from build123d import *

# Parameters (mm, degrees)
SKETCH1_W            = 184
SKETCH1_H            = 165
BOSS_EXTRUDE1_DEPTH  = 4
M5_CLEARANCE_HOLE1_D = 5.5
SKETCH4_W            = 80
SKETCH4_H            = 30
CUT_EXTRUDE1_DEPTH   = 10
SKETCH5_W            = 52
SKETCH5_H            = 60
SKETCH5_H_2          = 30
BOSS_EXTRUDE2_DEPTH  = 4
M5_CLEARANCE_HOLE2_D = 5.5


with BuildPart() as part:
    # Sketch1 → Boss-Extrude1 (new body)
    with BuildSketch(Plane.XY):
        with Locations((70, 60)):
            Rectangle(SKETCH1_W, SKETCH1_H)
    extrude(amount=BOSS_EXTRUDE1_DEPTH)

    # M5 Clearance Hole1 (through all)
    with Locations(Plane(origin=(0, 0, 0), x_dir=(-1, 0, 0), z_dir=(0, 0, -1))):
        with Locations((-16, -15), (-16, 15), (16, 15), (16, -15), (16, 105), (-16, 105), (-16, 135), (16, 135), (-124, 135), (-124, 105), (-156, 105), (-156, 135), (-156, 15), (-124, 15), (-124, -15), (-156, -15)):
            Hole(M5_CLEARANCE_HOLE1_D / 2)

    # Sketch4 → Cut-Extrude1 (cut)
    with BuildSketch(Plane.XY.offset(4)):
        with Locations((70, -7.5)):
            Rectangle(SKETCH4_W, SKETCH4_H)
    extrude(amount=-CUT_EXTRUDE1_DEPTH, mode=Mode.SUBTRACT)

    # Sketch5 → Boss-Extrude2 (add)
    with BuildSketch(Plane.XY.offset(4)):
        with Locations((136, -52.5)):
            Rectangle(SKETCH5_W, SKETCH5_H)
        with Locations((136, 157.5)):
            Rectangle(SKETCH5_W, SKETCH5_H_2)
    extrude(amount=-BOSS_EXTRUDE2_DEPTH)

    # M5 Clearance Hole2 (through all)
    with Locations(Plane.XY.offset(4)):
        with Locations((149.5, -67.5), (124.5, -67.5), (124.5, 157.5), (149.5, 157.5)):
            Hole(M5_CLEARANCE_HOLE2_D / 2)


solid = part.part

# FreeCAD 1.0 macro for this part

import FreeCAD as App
import Part
import Sketcher
from FreeCAD import Vector
Q = App.Units.Quantity


def add_polygon(sketch, points):
    """Adds a closed chain of lines whose ends are joined by coincident constraints."""
    first, n = sketch.GeometryCount, len(points)
    for a, b in zip(points, points[1:] + points[:1]):
        sketch.addGeometry(Part.LineSegment(App.Vector(*a, 0), App.Vector(*b, 0)), False)
    for i in range(n):
        sketch.addConstraint(Sketcher.Constraint("Coincident", first + i, 2, first + (i + 1) % n, 1))

doc = App.newDocument("Part")
params = doc.addObject("Spreadsheet::Sheet", "Params")
for row, (alias, value) in enumerate([
    ("sketch1_width", "184 mm"),
    ("sketch1_height", "165 mm"),
    ("pad1_length", "4 mm"),
    ("sketch2_diameter", "5.5 mm"),
    ("hole_diameter", "5.5 mm"),
    ("sketch3_width", "80 mm"),
    ("sketch3_height", "30 mm"),
    ("pocket1_length", "10 mm"),
    ("sketch4_width", "52 mm"),
    ("sketch4_height", "60 mm"),
    ("sketch4_height2", "30 mm"),
    ("pad2_length", "4 mm"),
    ("sketch5_diameter", "5.5 mm"),
    ("hole2_diameter", "5.5 mm"),
], start=1):
    params.set(f"A{row}", alias)
    params.set(f"B{row}", "=" + value)
    params.setAlias(f"B{row}", alias)

body = doc.addObject("PartDesign::Body", "Body")

# Sketch on XY plane
sketch1 = body.newObject("Sketcher::SketchObject", "Sketch")
sketch1.AttachmentSupport = (doc.getObject("XY_Plane"), [""])
sketch1.MapMode = "FlatFace"
add_polygon(sketch1, [(-22, 142), (-22, -22), (162, -22), (162, 142)])  # lines 0-3
sketch1.addConstraint(Sketcher.Constraint("Vertical", 0))
sketch1.addConstraint(Sketcher.Constraint("Horizontal", 1))
sketch1.addConstraint(Sketcher.Constraint("Vertical", 2))
sketch1.addConstraint(Sketcher.Constraint("Horizontal", 3))
sketch1.addConstraint(Sketcher.Constraint("DistanceX", 1, 1, 1, 2, Q("184 mm")))
sketch1.addConstraint(Sketcher.Constraint("DistanceY", 0, 2, 0, 1, Q("165 mm")))
sketch1.addConstraint(Sketcher.Constraint("DistanceX", 0, 2, -1, 1, Q("22 mm")))
sketch1.addConstraint(Sketcher.Constraint("DistanceY", 0, 2, -1, 1, Q("22.5 mm")))
sketch1.setExpression("Constraints[8]", "Params.sketch1_width")
sketch1.setExpression("Constraints[9]", "Params.sketch1_height")
pad1 = body.newObject("PartDesign::Pad", "Pad")
pad1.Profile = sketch1
pad1.setExpression("Length", "Params.pad1_length")

# Sketch on XY plane
sketch2 = body.newObject("Sketcher::SketchObject", "Sketch001")
sketch2.AttachmentSupport = (doc.getObject("XY_Plane"), [""])
sketch2.MapMode = "FlatFace"
sketch2.addGeometry(Part.Circle(Vector(16, -15, 0), Vector(0, 0, 1), 2.8), False)
sketch2.addGeometry(Part.Circle(Vector(16, 15, 0), Vector(0, 0, 1), 2.8), False)
sketch2.addGeometry(Part.Circle(Vector(-16, 15, 0), Vector(0, 0, 1), 2.8), False)
sketch2.addGeometry(Part.Circle(Vector(-16, -15, 0), Vector(0, 0, 1), 2.8), False)
sketch2.addGeometry(Part.Circle(Vector(-16, 105, 0), Vector(0, 0, 1), 2.8), False)
sketch2.addGeometry(Part.Circle(Vector(16, 105, 0), Vector(0, 0, 1), 2.8), False)
sketch2.addGeometry(Part.Circle(Vector(16, 135, 0), Vector(0, 0, 1), 2.8), False)
sketch2.addGeometry(Part.Circle(Vector(-16, 135, 0), Vector(0, 0, 1), 2.8), False)
sketch2.addGeometry(Part.Circle(Vector(124, 135, 0), Vector(0, 0, 1), 2.8), False)
sketch2.addGeometry(Part.Circle(Vector(124, 105, 0), Vector(0, 0, 1), 2.8), False)
sketch2.addGeometry(Part.Circle(Vector(156, 105, 0), Vector(0, 0, 1), 2.8), False)
sketch2.addGeometry(Part.Circle(Vector(156, 135, 0), Vector(0, 0, 1), 2.8), False)
sketch2.addGeometry(Part.Circle(Vector(156, 15, 0), Vector(0, 0, 1), 2.8), False)
sketch2.addGeometry(Part.Circle(Vector(124, 15, 0), Vector(0, 0, 1), 2.8), False)
sketch2.addGeometry(Part.Circle(Vector(124, -15, 0), Vector(0, 0, 1), 2.8), False)
sketch2.addGeometry(Part.Circle(Vector(156, -15, 0), Vector(0, 0, 1), 2.8), False)
sketch2.addConstraint(Sketcher.Constraint("Equal", 0, 1))
sketch2.addConstraint(Sketcher.Constraint("Equal", 1, 2))
sketch2.addConstraint(Sketcher.Constraint("Equal", 2, 3))
sketch2.addConstraint(Sketcher.Constraint("Equal", 3, 4))
sketch2.addConstraint(Sketcher.Constraint("Equal", 4, 5))
sketch2.addConstraint(Sketcher.Constraint("Equal", 5, 6))
sketch2.addConstraint(Sketcher.Constraint("Equal", 6, 7))
sketch2.addConstraint(Sketcher.Constraint("Equal", 7, 8))
sketch2.addConstraint(Sketcher.Constraint("Equal", 8, 9))
sketch2.addConstraint(Sketcher.Constraint("Equal", 9, 10))
sketch2.addConstraint(Sketcher.Constraint("Equal", 10, 11))
sketch2.addConstraint(Sketcher.Constraint("Equal", 11, 12))
sketch2.addConstraint(Sketcher.Constraint("Equal", 12, 13))
sketch2.addConstraint(Sketcher.Constraint("Equal", 13, 14))
sketch2.addConstraint(Sketcher.Constraint("Equal", 14, 15))
sketch2.addConstraint(Sketcher.Constraint("Symmetric", 0, 3, 2, 3, -1, 1))
sketch2.addConstraint(Sketcher.Constraint("Symmetric", 1, 3, 3, 3, -1, 1))
sketch2.addConstraint(Sketcher.Constraint("Symmetric", 1, 3, 2, 3, -2))
sketch2.addConstraint(Sketcher.Constraint("Symmetric", 4, 3, 5, 3, -2))
sketch2.addConstraint(Sketcher.Constraint("Symmetric", 6, 3, 7, 3, -2))
sketch2.addConstraint(Sketcher.Constraint("Symmetric", 13, 3, 14, 3, -1))
sketch2.addConstraint(Sketcher.Constraint("Symmetric", 12, 3, 15, 3, -1))
sketch2.addConstraint(Sketcher.Constraint("Horizontal", 7, 3, 8, 3))
sketch2.addConstraint(Sketcher.Constraint("Horizontal", 5, 3, 9, 3))
sketch2.addConstraint(Sketcher.Constraint("Horizontal", 9, 3, 10, 3))
sketch2.addConstraint(Sketcher.Constraint("Horizontal", 8, 3, 11, 3))
sketch2.addConstraint(Sketcher.Constraint("Horizontal", 2, 3, 12, 3))
sketch2.addConstraint(Sketcher.Constraint("Horizontal", 12, 3, 13, 3))
sketch2.addConstraint(Sketcher.Constraint("Vertical", 3, 3, 4, 3))
sketch2.addConstraint(Sketcher.Constraint("Vertical", 5, 3, 6, 3))
sketch2.addConstraint(Sketcher.Constraint("Vertical", 8, 3, 9, 3))
sketch2.addConstraint(Sketcher.Constraint("Vertical", 10, 3, 11, 3))
sketch2.addConstraint(Sketcher.Constraint("Vertical", 11, 3, 12, 3))
sketch2.addConstraint(Sketcher.Constraint("Vertical", 9, 3, 13, 3))
sketch2.addConstraint(Sketcher.Constraint("Diameter", 0, Q("5.5 mm")))
sketch2.addConstraint(Sketcher.Constraint("DistanceX", -1, 1, 0, 3, Q("16 mm")))
sketch2.addConstraint(Sketcher.Constraint("DistanceY", 0, 3, -1, 1, Q("15 mm")))
sketch2.addConstraint(Sketcher.Constraint("DistanceY", -1, 1, 4, 3, Q("105 mm")))
sketch2.addConstraint(Sketcher.Constraint("DistanceY", -1, 1, 6, 3, Q("135 mm")))
sketch2.addConstraint(Sketcher.Constraint("DistanceX", -1, 1, 8, 3, Q("124 mm")))
sketch2.addConstraint(Sketcher.Constraint("DistanceX", -1, 1, 10, 3, Q("156 mm")))
sketch2.setExpression("Constraints[34]", "Params.sketch2_diameter")
doc.recompute()
hole = body.newObject("PartDesign::Hole", "Hole")
hole.Profile = sketch2
hole.ThreadType = "None"
hole.setExpression("Diameter", "Params.hole_diameter")
hole.DepthType = "ThroughAll"
hole.Reversed = True

# Sketch on XY plane
sketch3 = body.newObject("Sketcher::SketchObject", "Sketch002")
sketch3.AttachmentSupport = (doc.getObject("XY_Plane"), [""])
sketch3.MapMode = "FlatFace"
sketch3.AttachmentOffset = App.Placement(Vector(0, 0, 4), App.Rotation())
add_polygon(sketch3, [(30, 8), (30, -22), (110, -22), (110, 8)])  # lines 0-3
sketch3.addConstraint(Sketcher.Constraint("Vertical", 0))
sketch3.addConstraint(Sketcher.Constraint("Horizontal", 1))
sketch3.addConstraint(Sketcher.Constraint("Vertical", 2))
sketch3.addConstraint(Sketcher.Constraint("Horizontal", 3))
sketch3.addConstraint(Sketcher.Constraint("DistanceX", 1, 1, 1, 2, Q("80 mm")))
sketch3.addConstraint(Sketcher.Constraint("DistanceY", 0, 2, 0, 1, Q("30 mm")))
sketch3.addConstraint(Sketcher.Constraint("DistanceX", -1, 1, 0, 2, Q("30 mm")))
sketch3.addConstraint(Sketcher.Constraint("DistanceY", 0, 2, -1, 1, Q("22.5 mm")))
sketch3.setExpression("Constraints[8]", "Params.sketch3_width")
sketch3.setExpression("Constraints[9]", "Params.sketch3_height")
pocket1 = body.newObject("PartDesign::Pocket", "Pocket")
pocket1.Profile = sketch3
pocket1.setExpression("Length", "Params.pocket1_length")

# Sketch on XY plane
sketch4 = body.newObject("Sketcher::SketchObject", "Sketch003")
sketch4.AttachmentSupport = (doc.getObject("XY_Plane"), [""])
sketch4.MapMode = "FlatFace"
sketch4.AttachmentOffset = App.Placement(Vector(0, 0, 4), App.Rotation())
add_polygon(sketch4, [(110, -22), (110, -82), (162, -82), (162, -22)])  # lines 0-3
add_polygon(sketch4, [(110, 172), (110, 142), (162, 142), (162, 172)])  # lines 4-7
sketch4.addConstraint(Sketcher.Constraint("Vertical", 0))
sketch4.addConstraint(Sketcher.Constraint("Horizontal", 1))
sketch4.addConstraint(Sketcher.Constraint("Vertical", 2))
sketch4.addConstraint(Sketcher.Constraint("Horizontal", 3))
sketch4.addConstraint(Sketcher.Constraint("Vertical", 4))
sketch4.addConstraint(Sketcher.Constraint("Horizontal", 5))
sketch4.addConstraint(Sketcher.Constraint("Vertical", 6))
sketch4.addConstraint(Sketcher.Constraint("Horizontal", 7))
sketch4.addConstraint(Sketcher.Constraint("Vertical", 3, 2, 4, 2))
sketch4.addConstraint(Sketcher.Constraint("Vertical", 2, 2, 5, 2))
sketch4.addConstraint(Sketcher.Constraint("DistanceX", 1, 1, 1, 2, Q("52 mm")))
sketch4.addConstraint(Sketcher.Constraint("DistanceY", 0, 2, 0, 1, Q("60 mm")))
sketch4.addConstraint(Sketcher.Constraint("DistanceY", 4, 2, 4, 1, Q("30 mm")))
sketch4.addConstraint(Sketcher.Constraint("DistanceX", -1, 1, 0, 2, Q("110 mm")))
sketch4.addConstraint(Sketcher.Constraint("DistanceY", 3, 2, 4, 2, Q("165 mm")))
sketch4.addConstraint(Sketcher.Constraint("DistanceY", 0, 2, -1, 1, Q("82.5 mm")))
sketch4.setExpression("Constraints[18]", "Params.sketch4_width")
sketch4.setExpression("Constraints[19]", "Params.sketch4_height")
sketch4.setExpression("Constraints[20]", "Params.sketch4_height2")
pad2 = body.newObject("PartDesign::Pad", "Pad001")
pad2.Profile = sketch4
pad2.setExpression("Length", "Params.pad2_length")
pad2.Reversed = True

# Sketch on XY plane
sketch5 = body.newObject("Sketcher::SketchObject", "Sketch004")
sketch5.AttachmentSupport = (doc.getObject("XY_Plane"), [""])
sketch5.MapMode = "FlatFace"
sketch5.AttachmentOffset = App.Placement(Vector(0, 0, 4), App.Rotation())
sketch5.addGeometry(Part.Circle(Vector(149.5, -67.5, 0), Vector(0, 0, 1), 2.8), False)
sketch5.addGeometry(Part.Circle(Vector(124.5, -67.5, 0), Vector(0, 0, 1), 2.8), False)
sketch5.addGeometry(Part.Circle(Vector(124.5, 157.5, 0), Vector(0, 0, 1), 2.8), False)
sketch5.addGeometry(Part.Circle(Vector(149.5, 157.5, 0), Vector(0, 0, 1), 2.8), False)
sketch5.addConstraint(Sketcher.Constraint("Equal", 0, 1))
sketch5.addConstraint(Sketcher.Constraint("Equal", 1, 2))
sketch5.addConstraint(Sketcher.Constraint("Equal", 2, 3))
sketch5.addConstraint(Sketcher.Constraint("Horizontal", 0, 3, 1, 3))
sketch5.addConstraint(Sketcher.Constraint("Horizontal", 2, 3, 3, 3))
sketch5.addConstraint(Sketcher.Constraint("Vertical", 1, 3, 2, 3))
sketch5.addConstraint(Sketcher.Constraint("Vertical", 0, 3, 3, 3))
sketch5.addConstraint(Sketcher.Constraint("Diameter", 0, Q("5.5 mm")))
sketch5.addConstraint(Sketcher.Constraint("DistanceX", 1, 3, 0, 3, Q("25 mm")))
sketch5.addConstraint(Sketcher.Constraint("DistanceY", 1, 3, 2, 3, Q("225 mm")))
sketch5.addConstraint(Sketcher.Constraint("DistanceX", -1, 1, 0, 3, Q("149.5 mm")))
sketch5.addConstraint(Sketcher.Constraint("DistanceY", 0, 3, -1, 1, Q("67.5 mm")))
sketch5.setExpression("Constraints[7]", "Params.sketch5_diameter")
doc.recompute()
hole2 = body.newObject("PartDesign::Hole", "Hole001")
hole2.Profile = sketch5
hole2.ThreadType = "None"
hole2.setExpression("Diameter", "Params.hole2_diameter")
hole2.DepthType = "ThroughAll"

doc.recompute()
